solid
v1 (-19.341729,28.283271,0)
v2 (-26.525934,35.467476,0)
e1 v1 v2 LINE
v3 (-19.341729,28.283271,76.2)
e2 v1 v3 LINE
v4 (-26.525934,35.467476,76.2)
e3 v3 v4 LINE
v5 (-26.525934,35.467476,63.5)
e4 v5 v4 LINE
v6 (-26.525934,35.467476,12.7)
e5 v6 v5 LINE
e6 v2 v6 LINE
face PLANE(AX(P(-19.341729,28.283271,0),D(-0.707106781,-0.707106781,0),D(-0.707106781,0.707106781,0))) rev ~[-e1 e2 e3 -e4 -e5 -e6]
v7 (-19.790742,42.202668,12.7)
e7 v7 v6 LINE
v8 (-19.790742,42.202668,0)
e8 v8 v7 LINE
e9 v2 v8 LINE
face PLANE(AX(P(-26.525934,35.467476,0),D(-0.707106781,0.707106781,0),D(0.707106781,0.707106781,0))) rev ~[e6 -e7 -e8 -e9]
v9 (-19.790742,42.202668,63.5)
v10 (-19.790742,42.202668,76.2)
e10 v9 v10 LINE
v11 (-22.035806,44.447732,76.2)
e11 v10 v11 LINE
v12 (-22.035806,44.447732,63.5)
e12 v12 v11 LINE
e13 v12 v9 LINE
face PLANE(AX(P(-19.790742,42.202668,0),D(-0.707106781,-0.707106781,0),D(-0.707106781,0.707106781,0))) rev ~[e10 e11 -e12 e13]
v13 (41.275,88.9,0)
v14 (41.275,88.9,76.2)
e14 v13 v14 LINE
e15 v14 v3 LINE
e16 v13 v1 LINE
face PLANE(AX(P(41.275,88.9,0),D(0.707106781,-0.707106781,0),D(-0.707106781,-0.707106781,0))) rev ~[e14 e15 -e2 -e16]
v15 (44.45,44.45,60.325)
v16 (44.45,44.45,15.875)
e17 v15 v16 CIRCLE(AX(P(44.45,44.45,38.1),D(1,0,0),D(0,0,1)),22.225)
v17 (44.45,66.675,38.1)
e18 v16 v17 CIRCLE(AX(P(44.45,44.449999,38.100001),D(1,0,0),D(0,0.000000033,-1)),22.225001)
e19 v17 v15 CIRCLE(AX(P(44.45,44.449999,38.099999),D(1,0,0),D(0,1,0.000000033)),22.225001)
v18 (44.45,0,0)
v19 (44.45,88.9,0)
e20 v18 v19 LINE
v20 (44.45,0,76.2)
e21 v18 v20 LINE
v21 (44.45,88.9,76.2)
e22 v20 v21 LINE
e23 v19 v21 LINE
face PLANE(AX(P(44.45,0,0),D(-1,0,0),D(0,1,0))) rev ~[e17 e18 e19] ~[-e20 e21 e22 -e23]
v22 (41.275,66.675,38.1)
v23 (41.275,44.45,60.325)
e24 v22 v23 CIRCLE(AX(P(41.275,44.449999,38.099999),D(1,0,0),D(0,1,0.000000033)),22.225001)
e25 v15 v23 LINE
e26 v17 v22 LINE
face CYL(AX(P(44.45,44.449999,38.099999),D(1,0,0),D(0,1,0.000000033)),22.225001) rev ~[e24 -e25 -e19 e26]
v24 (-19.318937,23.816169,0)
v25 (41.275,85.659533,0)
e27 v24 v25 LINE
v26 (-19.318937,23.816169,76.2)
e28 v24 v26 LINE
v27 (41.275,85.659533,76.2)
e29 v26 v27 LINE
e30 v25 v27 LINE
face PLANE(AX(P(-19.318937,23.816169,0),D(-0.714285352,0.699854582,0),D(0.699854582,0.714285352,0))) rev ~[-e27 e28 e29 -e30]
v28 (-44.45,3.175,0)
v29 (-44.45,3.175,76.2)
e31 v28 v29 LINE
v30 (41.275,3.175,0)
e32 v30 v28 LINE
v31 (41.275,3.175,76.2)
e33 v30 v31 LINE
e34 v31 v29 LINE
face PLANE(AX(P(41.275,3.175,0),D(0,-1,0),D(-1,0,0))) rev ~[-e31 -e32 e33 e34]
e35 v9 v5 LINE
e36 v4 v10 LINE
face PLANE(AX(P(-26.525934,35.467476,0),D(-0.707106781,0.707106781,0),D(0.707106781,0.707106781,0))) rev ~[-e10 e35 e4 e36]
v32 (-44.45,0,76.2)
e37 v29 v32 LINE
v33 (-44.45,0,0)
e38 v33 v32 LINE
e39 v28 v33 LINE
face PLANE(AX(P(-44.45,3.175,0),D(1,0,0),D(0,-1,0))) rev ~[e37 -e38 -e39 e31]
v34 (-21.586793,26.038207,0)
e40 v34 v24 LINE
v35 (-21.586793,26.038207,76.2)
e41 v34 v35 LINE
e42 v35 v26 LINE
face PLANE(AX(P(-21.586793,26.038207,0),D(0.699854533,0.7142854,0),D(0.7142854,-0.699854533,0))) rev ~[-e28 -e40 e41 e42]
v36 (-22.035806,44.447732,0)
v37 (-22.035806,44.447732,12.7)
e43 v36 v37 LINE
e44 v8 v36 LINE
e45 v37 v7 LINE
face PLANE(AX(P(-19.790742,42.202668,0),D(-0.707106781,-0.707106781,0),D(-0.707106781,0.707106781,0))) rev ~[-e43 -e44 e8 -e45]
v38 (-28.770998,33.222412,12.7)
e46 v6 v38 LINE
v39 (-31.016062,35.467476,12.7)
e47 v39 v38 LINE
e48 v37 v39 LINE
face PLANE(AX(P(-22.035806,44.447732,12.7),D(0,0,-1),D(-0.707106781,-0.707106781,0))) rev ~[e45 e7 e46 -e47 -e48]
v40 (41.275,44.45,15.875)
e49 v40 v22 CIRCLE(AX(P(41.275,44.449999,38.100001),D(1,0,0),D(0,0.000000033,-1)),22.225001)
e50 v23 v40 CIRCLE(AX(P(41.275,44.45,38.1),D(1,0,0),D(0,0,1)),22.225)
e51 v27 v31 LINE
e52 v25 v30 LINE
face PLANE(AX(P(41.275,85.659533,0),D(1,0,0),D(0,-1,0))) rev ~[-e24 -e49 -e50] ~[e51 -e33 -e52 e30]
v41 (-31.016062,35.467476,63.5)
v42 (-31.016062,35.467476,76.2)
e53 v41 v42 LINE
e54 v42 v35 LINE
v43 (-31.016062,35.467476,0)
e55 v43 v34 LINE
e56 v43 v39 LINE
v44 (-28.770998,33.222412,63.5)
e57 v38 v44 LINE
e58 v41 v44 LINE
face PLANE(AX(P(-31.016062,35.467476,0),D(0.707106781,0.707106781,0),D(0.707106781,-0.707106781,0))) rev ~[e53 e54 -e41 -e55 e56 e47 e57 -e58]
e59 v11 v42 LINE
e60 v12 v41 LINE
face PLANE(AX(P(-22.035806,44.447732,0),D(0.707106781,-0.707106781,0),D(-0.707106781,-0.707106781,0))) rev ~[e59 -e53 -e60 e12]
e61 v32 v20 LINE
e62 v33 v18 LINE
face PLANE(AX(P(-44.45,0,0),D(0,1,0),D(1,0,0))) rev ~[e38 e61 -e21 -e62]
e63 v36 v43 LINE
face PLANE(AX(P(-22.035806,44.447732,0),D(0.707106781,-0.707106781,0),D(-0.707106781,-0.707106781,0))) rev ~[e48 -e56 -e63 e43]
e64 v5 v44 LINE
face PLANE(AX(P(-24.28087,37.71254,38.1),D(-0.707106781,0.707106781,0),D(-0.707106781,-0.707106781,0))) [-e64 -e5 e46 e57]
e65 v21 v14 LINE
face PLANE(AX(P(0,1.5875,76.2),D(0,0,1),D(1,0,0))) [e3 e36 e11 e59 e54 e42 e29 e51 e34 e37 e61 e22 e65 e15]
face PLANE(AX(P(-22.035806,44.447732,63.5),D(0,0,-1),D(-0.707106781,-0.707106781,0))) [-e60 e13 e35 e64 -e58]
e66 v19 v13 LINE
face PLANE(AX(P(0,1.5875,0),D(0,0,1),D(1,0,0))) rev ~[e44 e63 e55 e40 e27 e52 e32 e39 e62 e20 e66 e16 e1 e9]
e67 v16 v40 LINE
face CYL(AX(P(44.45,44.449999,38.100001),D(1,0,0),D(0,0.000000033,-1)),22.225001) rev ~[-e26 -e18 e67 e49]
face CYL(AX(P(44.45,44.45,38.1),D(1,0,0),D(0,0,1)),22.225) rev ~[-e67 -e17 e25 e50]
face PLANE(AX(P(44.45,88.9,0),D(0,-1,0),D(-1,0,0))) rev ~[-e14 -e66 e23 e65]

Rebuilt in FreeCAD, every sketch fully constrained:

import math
import FreeCAD as App
import Part
import Sketcher

V = App.Vector
Q = App.Units.Quantity

doc = App.newDocument("Part")
body = doc.addObject("PartDesign::Body", "Body")

# Sketch on XY plane
sketch1 = doc.addObject("Sketcher::SketchObject", "Sketch")
body.addObject(sketch1)
sketch1.AttachmentSupport = (doc.XY_Plane, [""])
sketch1.MapMode = "FlatFace"
sketch1.addGeometry(Part.LineSegment(V(-44.5, 3.2, 0), V(-44.5, 0, 0)), False)
sketch1.addGeometry(Part.LineSegment(V(-44.5, 0, 0), V(44.5, 0, 0)), False)
sketch1.addGeometry(Part.LineSegment(V(44.5, 0, 0), V(44.5, 88.9, 0)), False)
sketch1.addGeometry(Part.LineSegment(V(44.5, 88.9, 0), V(41.3, 88.9, 0)), False)
sketch1.addGeometry(Part.LineSegment(V(41.3, 88.9, 0), V(-19.3, 28.3, 0)), False)
sketch1.addGeometry(Part.LineSegment(V(-19.3, 28.3, 0), V(-26.5, 35.5, 0)), False)
sketch1.addGeometry(Part.LineSegment(V(-26.5, 35.5, 0), V(-19.8, 42.2, 0)), False)
sketch1.addGeometry(Part.LineSegment(V(-19.8, 42.2, 0), V(-22, 44.4, 0)), False)
sketch1.addGeometry(Part.LineSegment(V(-22, 44.4, 0), V(-31, 35.5, 0)), False)
sketch1.addGeometry(Part.LineSegment(V(-31, 35.5, 0), V(-21.6, 26, 0)), False)
sketch1.addGeometry(Part.LineSegment(V(-21.6, 26, 0), V(-19.3, 23.8, 0)), False)
sketch1.addGeometry(Part.LineSegment(V(-19.3, 23.8, 0), V(41.3, 85.7, 0)), False)
sketch1.addGeometry(Part.LineSegment(V(41.3, 85.7, 0), V(41.3, 3.2, 0)), False)
sketch1.addGeometry(Part.LineSegment(V(41.3, 3.2, 0), V(-44.5, 3.2, 0)), False)
sketch1.addConstraint(Sketcher.Constraint("Coincident", 0, 2, 1, 1))
sketch1.addConstraint(Sketcher.Constraint("Coincident", 1, 2, 2, 1))
sketch1.addConstraint(Sketcher.Constraint("Coincident", 2, 2, 3, 1))
sketch1.addConstraint(Sketcher.Constraint("Coincident", 3, 2, 4, 1))
sketch1.addConstraint(Sketcher.Constraint("Coincident", 4, 2, 5, 1))
sketch1.addConstraint(Sketcher.Constraint("Coincident", 5, 2, 6, 1))
sketch1.addConstraint(Sketcher.Constraint("Coincident", 6, 2, 7, 1))
sketch1.addConstraint(Sketcher.Constraint("Coincident", 7, 2, 8, 1))
sketch1.addConstraint(Sketcher.Constraint("Coincident", 8, 2, 9, 1))
sketch1.addConstraint(Sketcher.Constraint("Coincident", 9, 2, 10, 1))
sketch1.addConstraint(Sketcher.Constraint("Coincident", 10, 2, 11, 1))
sketch1.addConstraint(Sketcher.Constraint("Coincident", 11, 2, 12, 1))
sketch1.addConstraint(Sketcher.Constraint("Coincident", 12, 2, 13, 1))
sketch1.addConstraint(Sketcher.Constraint("Coincident", 13, 2, 0, 1))
sketch1.addConstraint(Sketcher.Constraint("Vertical", 0))
sketch1.addConstraint(Sketcher.Constraint("Horizontal", 1))
sketch1.addConstraint(Sketcher.Constraint("Vertical", 2))
sketch1.addConstraint(Sketcher.Constraint("Horizontal", 3))
sketch1.addConstraint(Sketcher.Constraint("Vertical", 12))
sketch1.addConstraint(Sketcher.Constraint("Horizontal", 13))
sketch1.addConstraint(Sketcher.Constraint("Symmetric", 0, 2, 1, 2, -1, 1))
sketch1.addConstraint(Sketcher.Constraint("Perpendicular", 4, 5))
sketch1.addConstraint(Sketcher.Constraint("Perpendicular", 5, 6))
sketch1.addConstraint(Sketcher.Constraint("Perpendicular", 6, 7))
sketch1.addConstraint(Sketcher.Constraint("Perpendicular", 7, 8))
sketch1.addConstraint(Sketcher.Constraint("Perpendicular", 8, 9))
sketch1.addConstraint(Sketcher.Constraint("Perpendicular", 10, 11))
sketch1.addConstraint(Sketcher.Constraint("Horizontal", 5, 2, 8, 2))
sketch1.addConstraint(Sketcher.Constraint("Vertical", 3, 2, 11, 2))
sketch1.addConstraint(Sketcher.Constraint("Equal", 3, 0))
sketch1.addConstraint(Sketcher.Constraint("Equal", 1, 2))
sketch1.addConstraint(Sketcher.Constraint("Equal", 7, 10))
sketch1.addConstraint(Sketcher.Constraint("DistanceX", 1, 1, 1, 2, Q("3.5 in")))
sketch1.addConstraint(Sketcher.Constraint("Angle", 4, Q("-135 deg")))
sketch1.addConstraint(Sketcher.Constraint("Distance", 5, Q("0.4 in")))
sketch1.addConstraint(Sketcher.Constraint("Distance", 8, Q("0.5 in")))
sketch1.addConstraint(Sketcher.Constraint("DistanceX", 3, 2, 3, 1, Q("0.125 in")))
sketch1.addConstraint(Sketcher.Constraint("Distance", 4, Q("3.375 in")))
sketch1.addConstraint(Sketcher.Constraint("Distance", 6, Q("0.375 in")))
sketch1.addConstraint(Sketcher.Constraint("Distance", 9, Q("0.525 in")))
sketch1.addConstraint(Sketcher.Constraint("DistanceY", 6, 2, 11, 2, Q("1.7109002 in")))
pad1 = doc.addObject("PartDesign::Pad", "Pad")
body.addObject(pad1)
pad1.Profile = sketch1
pad1.Length = Q("3 in")

# Sketch on an angled plane
sketch2 = doc.addObject("Sketcher::SketchObject", "Sketch001")
body.addObject(sketch2)
sketch2.Placement = App.Placement(V(-33.241769, 33.241769, 0), App.Rotation(V(-0.707106781, -0.707106781, 0), V(0, 0, 0.999999999), V(-0.707106781, 0.707106781, 0), "ZXY"))
sketch2.addGeometry(Part.LineSegment(V(-16, 63, 0), V(-16, 13, 0)), False)
sketch2.addGeometry(Part.LineSegment(V(-16, 13, 0), V(-3, 13, 0)), False)
sketch2.addGeometry(Part.LineSegment(V(-3, 13, 0), V(-3, 63, 0)), False)
sketch2.addGeometry(Part.LineSegment(V(-3, 63, 0), V(-16, 63, 0)), False)
sketch2.addConstraint(Sketcher.Constraint("Coincident", 0, 2, 1, 1))
sketch2.addConstraint(Sketcher.Constraint("Coincident", 1, 2, 2, 1))
sketch2.addConstraint(Sketcher.Constraint("Coincident", 2, 2, 3, 1))
sketch2.addConstraint(Sketcher.Constraint("Coincident", 3, 2, 0, 1))
sketch2.addConstraint(Sketcher.Constraint("Vertical", 0))
sketch2.addConstraint(Sketcher.Constraint("Horizontal", 1))
sketch2.addConstraint(Sketcher.Constraint("Vertical", 2))
sketch2.addConstraint(Sketcher.Constraint("Horizontal", 3))
sketch2.addConstraint(Sketcher.Constraint("DistanceY", 0, 2, 0, 1, Q("2 in")))
sketch2.addConstraint(Sketcher.Constraint("DistanceX", 1, 1, 1, 2, Q("0.5 in")))
sketch2.addConstraint(Sketcher.Constraint("DistanceY", -1, 1, 0, 2, Q("0.5 in")))
sketch2.addConstraint(Sketcher.Constraint("DistanceX", 0, 2, -1, 1, 15.847625))
pocket1 = doc.addObject("PartDesign::Pocket", "Pocket")
body.addObject(pocket1)
pocket1.Profile = sketch2
pocket1.Length = Q("0.125 in")

# Sketch on YZ plane
sketch3 = doc.addObject("Sketcher::SketchObject", "Sketch002")
body.addObject(sketch3)
sketch3.AttachmentSupport = (doc.YZ_Plane, [""])
sketch3.MapMode = "FlatFace"
sketch3.AttachmentOffset = App.Placement(V(0, 0, 1.75 * 25.4), App.Rotation())
sketch3.addGeometry(Part.ArcOfCircle(Part.Circle(V(44, 38, 0), V(0, 0, 1), 22), math.radians(-90), math.radians(0)), False)
sketch3.addGeometry(Part.ArcOfCircle(Part.Circle(V(44, 38, 0), V(0, 0, 1), 22), math.radians(0), math.radians(90)), False)
sketch3.addGeometry(Part.ArcOfCircle(Part.Circle(V(44, 38, 0), V(0, 0, 1), 22), math.radians(90), math.radians(270)), False)
sketch3.addConstraint(Sketcher.Constraint("Tangent", 0, 2, 1, 1))
sketch3.addConstraint(Sketcher.Constraint("Tangent", 1, 2, 2, 1))
sketch3.addConstraint(Sketcher.Constraint("Tangent", 2, 2, 0, 1))
sketch3.addConstraint(Sketcher.Constraint("Horizontal", 2, 3, 0, 2))
sketch3.addConstraint(Sketcher.Constraint("Vertical", 2, 3, 1, 2))
sketch3.addConstraint(Sketcher.Constraint("Vertical", 1, 2, 2, 2))
sketch3.addConstraint(Sketcher.Constraint("Radius", 0, Q("0.875 in")))
sketch3.addConstraint(Sketcher.Constraint("DistanceY", -1, 1, 0, 3, Q("1.5 in")))
sketch3.addConstraint(Sketcher.Constraint("DistanceX", -1, 1, 0, 3, Q("1.75 in")))
pocket2 = doc.addObject("PartDesign::Pocket", "Pocket001")
body.addObject(pocket2)
pocket2.Profile = sketch3
pocket2.Length = Q("0.5 in")

doc.recompute()
